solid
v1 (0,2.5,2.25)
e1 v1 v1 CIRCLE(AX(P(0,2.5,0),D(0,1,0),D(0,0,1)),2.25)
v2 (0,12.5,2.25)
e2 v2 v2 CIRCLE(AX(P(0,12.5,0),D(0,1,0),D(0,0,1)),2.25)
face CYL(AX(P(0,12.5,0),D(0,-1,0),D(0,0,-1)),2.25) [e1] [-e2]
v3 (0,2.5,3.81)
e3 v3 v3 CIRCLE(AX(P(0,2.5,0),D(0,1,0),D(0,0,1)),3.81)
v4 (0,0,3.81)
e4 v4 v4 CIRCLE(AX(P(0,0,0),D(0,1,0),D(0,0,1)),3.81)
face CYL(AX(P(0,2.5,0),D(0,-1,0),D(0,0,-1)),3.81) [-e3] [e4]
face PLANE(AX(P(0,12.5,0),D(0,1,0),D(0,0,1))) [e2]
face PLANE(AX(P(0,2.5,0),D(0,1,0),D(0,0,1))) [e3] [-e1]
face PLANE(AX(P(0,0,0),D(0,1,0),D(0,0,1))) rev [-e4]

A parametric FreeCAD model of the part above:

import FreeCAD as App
import Part
import Sketcher

V = App.Vector

doc = App.newDocument("Part")
body = doc.addObject("PartDesign::Body", "Body")

# Sketch on XZ plane
sketch1 = body.newObject("Sketcher::SketchObject", "Sketch")
sketch1.AttachmentSupport = (doc.getObject("XZ_Plane"), [""])
sketch1.MapMode = "FlatFace"
sketch1.addGeometry(Part.Circle(V(0, 0, 0), V(0, 0, 1), 3.81), False)
sketch1.addConstraint(Sketcher.Constraint("Coincident", 0, 3, -1, 1))
sketch1.addConstraint(Sketcher.Constraint("Diameter", 0, 7.62))
pad1 = body.newObject("PartDesign::Pad", "Pad")
pad1.Profile = sketch1
pad1.Length = 2.5
pad1.Reversed = True

# Sketch on XZ plane
sketch2 = body.newObject("Sketcher::SketchObject", "Sketch001")
sketch2.AttachmentSupport = (doc.getObject("XZ_Plane"), [""])
sketch2.MapMode = "FlatFace"
sketch2.AttachmentOffset = App.Placement(V(0, 0, -2.5), App.Rotation())
sketch2.addGeometry(Part.Circle(V(0, 0, 0), V(0, 0, 1), 2.25), False)
sketch2.addConstraint(Sketcher.Constraint("Coincident", 0, 3, -1, 1))
sketch2.addConstraint(Sketcher.Constraint("Diameter", 0, 4.5))
pad2 = body.newObject("PartDesign::Pad", "Pad001")
pad2.Profile = sketch2
pad2.Length = 10
pad2.Reversed = True

doc.recompute()
